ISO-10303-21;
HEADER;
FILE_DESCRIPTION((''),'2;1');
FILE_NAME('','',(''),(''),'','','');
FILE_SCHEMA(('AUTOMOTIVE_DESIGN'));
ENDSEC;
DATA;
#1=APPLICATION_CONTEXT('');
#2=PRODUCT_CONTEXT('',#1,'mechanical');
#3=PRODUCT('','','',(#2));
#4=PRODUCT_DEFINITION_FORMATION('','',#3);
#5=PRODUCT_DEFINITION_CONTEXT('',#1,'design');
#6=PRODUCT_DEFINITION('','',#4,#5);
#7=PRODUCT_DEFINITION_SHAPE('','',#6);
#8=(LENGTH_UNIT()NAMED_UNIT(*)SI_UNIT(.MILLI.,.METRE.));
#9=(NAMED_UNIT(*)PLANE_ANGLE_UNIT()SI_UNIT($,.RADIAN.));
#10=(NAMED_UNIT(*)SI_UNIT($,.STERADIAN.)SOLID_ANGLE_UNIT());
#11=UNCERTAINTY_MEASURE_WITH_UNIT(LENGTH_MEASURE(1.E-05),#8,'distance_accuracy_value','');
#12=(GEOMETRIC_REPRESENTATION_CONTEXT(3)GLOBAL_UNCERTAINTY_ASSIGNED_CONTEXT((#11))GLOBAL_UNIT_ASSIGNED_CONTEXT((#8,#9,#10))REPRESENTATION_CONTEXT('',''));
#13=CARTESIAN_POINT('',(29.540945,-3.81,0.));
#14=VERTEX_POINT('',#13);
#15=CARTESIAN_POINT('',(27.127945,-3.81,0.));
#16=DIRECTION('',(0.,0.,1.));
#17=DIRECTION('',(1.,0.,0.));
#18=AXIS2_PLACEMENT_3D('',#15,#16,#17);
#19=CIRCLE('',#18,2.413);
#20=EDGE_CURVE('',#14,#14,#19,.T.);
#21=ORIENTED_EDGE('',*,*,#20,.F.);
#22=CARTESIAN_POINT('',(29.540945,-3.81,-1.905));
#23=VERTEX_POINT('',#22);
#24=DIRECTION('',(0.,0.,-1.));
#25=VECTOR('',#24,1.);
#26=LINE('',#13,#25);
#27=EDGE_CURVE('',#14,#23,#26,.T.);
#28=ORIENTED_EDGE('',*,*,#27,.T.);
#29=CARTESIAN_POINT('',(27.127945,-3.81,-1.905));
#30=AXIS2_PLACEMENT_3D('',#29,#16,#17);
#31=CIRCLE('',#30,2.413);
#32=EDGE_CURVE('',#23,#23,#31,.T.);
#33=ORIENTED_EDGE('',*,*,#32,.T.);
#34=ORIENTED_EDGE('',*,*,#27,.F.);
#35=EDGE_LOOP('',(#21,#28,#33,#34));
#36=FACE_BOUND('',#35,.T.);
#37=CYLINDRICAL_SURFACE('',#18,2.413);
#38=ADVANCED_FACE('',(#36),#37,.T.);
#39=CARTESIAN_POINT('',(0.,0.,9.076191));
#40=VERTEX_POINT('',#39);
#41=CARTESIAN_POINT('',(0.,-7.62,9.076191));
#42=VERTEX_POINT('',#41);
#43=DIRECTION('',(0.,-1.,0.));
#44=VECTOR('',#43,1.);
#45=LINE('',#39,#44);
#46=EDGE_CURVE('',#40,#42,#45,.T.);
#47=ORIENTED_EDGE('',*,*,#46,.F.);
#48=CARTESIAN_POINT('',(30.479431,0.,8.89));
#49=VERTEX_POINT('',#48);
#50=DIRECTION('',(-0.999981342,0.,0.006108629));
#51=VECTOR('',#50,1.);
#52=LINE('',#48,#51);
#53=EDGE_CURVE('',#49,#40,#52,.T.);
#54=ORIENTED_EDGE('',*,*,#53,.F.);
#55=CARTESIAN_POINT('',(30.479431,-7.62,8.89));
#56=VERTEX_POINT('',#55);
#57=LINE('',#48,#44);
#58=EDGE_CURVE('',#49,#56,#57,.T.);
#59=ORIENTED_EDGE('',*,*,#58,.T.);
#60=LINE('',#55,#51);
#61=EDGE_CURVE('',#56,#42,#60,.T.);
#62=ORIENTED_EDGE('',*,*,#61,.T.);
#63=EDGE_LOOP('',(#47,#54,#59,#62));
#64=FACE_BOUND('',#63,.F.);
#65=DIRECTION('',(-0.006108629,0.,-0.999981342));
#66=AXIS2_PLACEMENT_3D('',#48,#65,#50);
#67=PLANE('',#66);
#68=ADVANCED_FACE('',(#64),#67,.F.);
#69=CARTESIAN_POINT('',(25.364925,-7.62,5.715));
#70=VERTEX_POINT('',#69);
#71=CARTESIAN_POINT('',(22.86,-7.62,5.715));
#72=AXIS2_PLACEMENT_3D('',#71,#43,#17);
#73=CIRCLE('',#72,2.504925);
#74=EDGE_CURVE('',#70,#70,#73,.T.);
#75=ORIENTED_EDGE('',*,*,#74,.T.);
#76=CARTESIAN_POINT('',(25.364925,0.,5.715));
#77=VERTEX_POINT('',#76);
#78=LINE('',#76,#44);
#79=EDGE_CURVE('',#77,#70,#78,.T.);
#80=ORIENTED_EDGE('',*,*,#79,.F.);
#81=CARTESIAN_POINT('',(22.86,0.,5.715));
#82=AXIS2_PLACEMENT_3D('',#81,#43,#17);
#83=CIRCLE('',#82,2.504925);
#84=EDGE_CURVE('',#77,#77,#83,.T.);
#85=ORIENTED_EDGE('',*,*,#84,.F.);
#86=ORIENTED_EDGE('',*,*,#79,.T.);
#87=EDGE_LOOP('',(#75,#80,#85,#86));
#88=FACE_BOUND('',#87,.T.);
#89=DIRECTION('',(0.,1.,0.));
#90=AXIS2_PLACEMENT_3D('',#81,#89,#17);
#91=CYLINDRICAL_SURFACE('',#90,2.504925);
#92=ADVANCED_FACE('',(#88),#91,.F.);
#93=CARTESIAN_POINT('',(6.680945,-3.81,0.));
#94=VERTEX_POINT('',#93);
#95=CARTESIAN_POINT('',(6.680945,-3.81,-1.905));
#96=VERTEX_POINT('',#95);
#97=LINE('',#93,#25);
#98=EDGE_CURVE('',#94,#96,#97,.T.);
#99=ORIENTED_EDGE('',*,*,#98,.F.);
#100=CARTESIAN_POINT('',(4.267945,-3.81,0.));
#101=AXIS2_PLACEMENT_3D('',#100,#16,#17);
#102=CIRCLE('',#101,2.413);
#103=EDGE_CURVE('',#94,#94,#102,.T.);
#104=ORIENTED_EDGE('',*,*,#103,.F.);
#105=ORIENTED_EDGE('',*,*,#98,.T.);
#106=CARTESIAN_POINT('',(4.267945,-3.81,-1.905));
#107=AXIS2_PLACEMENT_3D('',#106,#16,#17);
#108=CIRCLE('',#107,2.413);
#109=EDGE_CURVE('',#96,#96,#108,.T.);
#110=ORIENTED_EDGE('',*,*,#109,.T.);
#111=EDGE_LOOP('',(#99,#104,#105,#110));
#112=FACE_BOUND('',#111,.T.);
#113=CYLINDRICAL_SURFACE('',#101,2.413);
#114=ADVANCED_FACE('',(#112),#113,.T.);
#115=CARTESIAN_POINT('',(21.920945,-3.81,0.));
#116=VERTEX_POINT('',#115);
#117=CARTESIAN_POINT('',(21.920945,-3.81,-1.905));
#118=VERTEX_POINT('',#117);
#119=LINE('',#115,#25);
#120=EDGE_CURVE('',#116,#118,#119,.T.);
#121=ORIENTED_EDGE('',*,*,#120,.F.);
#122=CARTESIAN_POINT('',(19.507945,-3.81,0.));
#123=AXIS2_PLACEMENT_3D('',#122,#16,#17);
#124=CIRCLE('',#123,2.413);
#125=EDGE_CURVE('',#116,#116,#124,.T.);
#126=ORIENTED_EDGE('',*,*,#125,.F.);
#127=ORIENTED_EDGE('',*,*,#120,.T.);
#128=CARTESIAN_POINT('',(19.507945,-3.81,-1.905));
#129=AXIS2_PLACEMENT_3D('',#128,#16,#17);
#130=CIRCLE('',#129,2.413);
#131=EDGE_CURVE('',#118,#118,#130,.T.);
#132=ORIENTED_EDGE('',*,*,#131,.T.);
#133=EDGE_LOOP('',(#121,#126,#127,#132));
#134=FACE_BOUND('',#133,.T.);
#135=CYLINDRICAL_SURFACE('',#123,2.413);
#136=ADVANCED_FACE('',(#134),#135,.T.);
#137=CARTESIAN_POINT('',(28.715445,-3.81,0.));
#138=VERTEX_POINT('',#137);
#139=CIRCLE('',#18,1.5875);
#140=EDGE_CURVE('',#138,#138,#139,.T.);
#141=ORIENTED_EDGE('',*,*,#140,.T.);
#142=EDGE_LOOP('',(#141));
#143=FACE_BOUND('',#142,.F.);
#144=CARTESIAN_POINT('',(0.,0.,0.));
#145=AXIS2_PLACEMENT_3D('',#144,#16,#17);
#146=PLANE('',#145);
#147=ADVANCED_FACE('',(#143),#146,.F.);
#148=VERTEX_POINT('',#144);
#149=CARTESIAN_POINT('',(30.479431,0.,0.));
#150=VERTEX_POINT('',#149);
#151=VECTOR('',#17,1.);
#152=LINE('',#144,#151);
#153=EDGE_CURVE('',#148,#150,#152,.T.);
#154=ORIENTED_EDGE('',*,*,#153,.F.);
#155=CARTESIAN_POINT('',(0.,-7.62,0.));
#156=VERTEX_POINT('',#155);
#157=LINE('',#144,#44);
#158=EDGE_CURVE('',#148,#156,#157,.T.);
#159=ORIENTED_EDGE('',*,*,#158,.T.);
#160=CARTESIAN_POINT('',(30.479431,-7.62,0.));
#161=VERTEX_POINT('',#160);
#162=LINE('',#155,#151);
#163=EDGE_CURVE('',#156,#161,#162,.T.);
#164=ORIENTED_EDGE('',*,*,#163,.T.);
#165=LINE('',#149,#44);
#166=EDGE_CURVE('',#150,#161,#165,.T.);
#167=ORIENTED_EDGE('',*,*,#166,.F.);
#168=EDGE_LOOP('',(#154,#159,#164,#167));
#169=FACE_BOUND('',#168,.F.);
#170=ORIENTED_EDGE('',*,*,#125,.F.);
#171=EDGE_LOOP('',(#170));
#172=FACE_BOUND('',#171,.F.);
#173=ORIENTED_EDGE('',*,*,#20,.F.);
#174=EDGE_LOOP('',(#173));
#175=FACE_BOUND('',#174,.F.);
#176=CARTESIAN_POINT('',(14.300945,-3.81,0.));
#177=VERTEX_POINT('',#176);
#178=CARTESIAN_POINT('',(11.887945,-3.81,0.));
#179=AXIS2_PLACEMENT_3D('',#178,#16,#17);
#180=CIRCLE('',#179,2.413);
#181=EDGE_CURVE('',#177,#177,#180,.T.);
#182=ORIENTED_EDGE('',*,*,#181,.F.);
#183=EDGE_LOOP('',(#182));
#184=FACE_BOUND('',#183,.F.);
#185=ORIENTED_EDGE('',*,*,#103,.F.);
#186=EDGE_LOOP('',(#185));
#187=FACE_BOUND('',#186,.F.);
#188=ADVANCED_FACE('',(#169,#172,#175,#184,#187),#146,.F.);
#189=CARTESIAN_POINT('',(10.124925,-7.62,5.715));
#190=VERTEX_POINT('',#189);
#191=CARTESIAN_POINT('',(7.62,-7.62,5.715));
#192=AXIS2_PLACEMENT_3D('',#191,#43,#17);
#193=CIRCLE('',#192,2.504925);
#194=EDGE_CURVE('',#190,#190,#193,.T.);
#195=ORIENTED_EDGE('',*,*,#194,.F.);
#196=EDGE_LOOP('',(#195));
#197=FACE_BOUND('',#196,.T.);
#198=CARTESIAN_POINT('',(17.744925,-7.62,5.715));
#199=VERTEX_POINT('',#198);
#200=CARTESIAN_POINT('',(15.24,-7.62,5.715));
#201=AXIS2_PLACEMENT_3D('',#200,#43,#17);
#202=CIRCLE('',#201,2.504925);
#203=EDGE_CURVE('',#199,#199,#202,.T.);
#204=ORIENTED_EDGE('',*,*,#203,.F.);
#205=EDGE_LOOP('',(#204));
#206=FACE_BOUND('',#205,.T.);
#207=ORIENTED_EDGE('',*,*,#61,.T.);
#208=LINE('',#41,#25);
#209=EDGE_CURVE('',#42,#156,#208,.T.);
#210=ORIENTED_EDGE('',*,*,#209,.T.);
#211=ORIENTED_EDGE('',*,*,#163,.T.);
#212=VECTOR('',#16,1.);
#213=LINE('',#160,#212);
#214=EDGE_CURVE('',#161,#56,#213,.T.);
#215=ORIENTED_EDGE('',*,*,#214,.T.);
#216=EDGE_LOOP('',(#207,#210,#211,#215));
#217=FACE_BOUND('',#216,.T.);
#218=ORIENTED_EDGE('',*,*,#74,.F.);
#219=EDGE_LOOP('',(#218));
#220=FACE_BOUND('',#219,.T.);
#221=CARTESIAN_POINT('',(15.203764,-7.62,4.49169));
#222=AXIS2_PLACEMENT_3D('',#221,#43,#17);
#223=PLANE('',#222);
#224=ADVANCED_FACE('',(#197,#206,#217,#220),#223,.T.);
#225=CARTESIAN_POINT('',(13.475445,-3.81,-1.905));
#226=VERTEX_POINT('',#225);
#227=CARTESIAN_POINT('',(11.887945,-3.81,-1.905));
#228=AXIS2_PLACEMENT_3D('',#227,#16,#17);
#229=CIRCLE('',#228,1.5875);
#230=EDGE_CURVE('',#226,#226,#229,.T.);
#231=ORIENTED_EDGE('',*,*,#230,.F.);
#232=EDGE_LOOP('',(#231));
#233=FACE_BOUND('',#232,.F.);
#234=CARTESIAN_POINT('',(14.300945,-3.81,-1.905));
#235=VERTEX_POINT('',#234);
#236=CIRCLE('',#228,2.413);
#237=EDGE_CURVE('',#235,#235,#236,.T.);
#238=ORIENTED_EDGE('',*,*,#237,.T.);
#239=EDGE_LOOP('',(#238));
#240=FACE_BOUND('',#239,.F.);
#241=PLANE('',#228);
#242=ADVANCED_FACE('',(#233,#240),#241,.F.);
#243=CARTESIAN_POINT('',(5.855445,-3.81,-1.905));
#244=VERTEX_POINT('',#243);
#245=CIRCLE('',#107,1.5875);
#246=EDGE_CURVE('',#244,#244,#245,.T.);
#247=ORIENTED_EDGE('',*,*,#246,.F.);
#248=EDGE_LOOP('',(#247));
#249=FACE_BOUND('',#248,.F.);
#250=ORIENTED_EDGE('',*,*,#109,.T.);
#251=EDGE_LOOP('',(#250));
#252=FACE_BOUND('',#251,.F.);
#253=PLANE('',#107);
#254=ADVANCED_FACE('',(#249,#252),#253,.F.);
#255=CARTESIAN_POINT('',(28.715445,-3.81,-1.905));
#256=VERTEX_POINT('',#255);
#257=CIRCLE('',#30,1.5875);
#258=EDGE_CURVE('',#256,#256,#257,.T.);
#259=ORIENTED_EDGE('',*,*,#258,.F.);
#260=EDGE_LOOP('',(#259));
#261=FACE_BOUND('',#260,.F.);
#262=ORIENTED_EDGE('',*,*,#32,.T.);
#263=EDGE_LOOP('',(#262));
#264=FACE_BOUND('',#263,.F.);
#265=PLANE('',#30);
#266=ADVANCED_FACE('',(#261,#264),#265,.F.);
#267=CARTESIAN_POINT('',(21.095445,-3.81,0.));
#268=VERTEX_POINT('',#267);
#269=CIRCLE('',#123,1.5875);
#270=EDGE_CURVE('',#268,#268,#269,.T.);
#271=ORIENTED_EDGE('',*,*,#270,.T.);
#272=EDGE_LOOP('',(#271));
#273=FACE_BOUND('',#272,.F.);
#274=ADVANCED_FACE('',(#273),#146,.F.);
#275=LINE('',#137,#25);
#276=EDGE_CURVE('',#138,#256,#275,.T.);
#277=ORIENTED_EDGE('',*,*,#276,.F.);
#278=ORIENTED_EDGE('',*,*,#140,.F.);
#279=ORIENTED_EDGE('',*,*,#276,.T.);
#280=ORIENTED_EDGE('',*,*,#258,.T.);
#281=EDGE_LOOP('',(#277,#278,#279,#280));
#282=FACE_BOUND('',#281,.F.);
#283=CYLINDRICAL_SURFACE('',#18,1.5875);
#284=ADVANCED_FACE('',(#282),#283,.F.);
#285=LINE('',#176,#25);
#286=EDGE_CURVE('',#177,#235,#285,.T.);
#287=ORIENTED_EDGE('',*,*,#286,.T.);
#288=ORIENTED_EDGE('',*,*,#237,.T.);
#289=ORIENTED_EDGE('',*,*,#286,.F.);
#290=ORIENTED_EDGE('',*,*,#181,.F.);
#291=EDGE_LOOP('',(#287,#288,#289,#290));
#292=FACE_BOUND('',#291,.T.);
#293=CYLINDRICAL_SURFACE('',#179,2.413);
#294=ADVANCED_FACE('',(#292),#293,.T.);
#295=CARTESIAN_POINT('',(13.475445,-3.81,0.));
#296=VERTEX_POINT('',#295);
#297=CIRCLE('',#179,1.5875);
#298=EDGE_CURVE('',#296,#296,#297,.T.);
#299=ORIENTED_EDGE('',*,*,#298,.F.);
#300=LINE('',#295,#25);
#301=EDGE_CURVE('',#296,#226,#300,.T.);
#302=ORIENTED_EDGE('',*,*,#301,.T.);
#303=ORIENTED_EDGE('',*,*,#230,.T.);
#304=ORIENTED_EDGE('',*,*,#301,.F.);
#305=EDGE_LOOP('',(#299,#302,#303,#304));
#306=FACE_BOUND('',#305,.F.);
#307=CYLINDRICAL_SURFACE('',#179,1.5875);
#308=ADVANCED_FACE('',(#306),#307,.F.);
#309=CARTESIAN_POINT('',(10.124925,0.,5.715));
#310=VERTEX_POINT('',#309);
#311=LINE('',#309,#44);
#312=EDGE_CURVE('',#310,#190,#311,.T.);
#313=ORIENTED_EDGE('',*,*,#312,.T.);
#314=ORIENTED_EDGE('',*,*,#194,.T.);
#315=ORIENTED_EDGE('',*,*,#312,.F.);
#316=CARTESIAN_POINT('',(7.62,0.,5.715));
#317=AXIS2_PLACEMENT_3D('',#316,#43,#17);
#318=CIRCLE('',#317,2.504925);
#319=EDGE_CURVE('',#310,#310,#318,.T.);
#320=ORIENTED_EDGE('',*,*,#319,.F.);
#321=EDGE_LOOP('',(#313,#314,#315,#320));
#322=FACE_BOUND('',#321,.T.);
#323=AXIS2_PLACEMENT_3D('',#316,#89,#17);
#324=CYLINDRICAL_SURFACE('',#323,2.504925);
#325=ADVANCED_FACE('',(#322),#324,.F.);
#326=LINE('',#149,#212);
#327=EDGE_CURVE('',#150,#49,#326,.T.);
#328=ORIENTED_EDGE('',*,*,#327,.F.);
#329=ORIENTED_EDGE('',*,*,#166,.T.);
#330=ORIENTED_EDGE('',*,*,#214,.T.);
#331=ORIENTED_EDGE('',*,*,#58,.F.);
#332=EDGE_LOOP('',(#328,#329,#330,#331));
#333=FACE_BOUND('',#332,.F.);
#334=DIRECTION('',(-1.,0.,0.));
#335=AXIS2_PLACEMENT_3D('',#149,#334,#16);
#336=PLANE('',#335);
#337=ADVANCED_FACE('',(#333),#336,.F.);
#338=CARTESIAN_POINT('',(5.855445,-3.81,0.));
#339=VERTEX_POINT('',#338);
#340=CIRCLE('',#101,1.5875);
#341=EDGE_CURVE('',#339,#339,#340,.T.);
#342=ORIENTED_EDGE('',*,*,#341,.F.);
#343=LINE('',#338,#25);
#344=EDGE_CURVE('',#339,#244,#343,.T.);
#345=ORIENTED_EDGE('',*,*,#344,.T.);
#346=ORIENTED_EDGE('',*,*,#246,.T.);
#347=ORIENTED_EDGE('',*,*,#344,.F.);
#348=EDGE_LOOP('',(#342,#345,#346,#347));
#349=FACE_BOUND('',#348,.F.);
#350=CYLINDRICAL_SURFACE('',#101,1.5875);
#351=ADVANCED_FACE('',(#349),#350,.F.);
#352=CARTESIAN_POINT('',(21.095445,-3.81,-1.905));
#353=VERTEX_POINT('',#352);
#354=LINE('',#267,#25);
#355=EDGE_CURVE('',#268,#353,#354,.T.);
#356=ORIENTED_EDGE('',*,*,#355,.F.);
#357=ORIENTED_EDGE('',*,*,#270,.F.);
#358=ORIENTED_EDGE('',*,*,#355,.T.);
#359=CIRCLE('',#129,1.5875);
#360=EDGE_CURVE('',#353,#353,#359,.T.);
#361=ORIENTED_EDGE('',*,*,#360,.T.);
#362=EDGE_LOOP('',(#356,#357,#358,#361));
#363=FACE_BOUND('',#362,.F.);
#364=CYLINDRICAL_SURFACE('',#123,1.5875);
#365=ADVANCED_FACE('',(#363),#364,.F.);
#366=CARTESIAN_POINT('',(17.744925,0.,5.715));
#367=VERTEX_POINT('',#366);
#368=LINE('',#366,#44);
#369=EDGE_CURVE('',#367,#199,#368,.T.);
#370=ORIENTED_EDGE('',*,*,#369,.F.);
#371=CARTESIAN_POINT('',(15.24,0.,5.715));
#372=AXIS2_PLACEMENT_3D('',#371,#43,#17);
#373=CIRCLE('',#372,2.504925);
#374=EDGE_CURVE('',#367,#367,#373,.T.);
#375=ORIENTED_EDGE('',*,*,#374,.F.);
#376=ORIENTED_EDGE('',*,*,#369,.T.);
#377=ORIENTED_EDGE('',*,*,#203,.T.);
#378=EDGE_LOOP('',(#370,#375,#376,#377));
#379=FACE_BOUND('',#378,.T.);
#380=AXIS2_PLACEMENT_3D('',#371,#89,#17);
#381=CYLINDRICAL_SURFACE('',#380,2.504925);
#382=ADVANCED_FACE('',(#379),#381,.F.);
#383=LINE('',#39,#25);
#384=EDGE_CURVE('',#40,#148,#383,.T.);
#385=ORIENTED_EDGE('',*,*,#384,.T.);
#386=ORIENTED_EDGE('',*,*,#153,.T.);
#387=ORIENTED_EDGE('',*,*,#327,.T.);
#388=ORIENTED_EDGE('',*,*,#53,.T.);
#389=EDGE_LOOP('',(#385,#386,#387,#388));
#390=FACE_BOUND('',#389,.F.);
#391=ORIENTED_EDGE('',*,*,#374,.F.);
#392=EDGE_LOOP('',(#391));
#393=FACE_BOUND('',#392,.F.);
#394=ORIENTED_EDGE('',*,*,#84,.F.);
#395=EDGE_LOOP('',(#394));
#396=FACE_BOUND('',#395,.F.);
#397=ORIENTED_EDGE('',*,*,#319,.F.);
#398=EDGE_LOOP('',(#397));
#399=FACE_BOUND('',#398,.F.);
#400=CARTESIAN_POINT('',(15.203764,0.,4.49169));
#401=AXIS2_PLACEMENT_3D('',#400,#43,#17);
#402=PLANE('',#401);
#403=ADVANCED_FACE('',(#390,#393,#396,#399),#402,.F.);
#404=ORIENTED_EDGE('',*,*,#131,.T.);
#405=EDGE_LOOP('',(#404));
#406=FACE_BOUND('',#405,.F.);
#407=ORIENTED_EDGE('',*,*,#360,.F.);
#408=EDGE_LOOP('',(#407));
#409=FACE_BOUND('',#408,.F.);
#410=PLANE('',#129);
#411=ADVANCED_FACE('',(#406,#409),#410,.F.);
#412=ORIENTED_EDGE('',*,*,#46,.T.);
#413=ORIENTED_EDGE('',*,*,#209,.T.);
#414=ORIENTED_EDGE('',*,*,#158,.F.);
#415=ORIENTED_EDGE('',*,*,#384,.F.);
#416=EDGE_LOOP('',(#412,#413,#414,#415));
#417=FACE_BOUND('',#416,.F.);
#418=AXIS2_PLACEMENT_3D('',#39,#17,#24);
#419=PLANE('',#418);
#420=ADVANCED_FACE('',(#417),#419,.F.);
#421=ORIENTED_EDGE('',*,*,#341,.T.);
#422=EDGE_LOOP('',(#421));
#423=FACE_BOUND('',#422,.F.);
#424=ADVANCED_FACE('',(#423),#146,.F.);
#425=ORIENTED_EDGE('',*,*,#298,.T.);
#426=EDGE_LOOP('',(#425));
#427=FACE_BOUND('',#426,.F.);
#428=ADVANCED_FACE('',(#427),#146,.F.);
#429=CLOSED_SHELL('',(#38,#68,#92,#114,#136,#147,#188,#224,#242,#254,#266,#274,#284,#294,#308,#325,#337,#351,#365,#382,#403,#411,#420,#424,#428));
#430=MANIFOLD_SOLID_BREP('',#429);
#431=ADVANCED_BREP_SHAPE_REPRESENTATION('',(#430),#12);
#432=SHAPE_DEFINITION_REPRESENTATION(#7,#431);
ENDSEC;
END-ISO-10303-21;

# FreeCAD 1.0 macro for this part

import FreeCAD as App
import Part
import Sketcher

V = App.Vector
Q = App.Units.Quantity

doc = App.newDocument("Part")
body = doc.addObject("PartDesign::Body", "Body")

# Sketch on XZ plane
sketch1 = doc.addObject("Sketcher::SketchObject", "Sketch")
body.addObject(sketch1)
sketch1.AttachmentSupport = (doc.XZ_Plane, [""])
sketch1.MapMode = "FlatFace"
sketch1.addGeometry(Part.LineSegment(V(30.5, 8.9, 0), V(0, 9.1, 0)), False)
sketch1.addGeometry(Part.LineSegment(V(0, 9.1, 0), V(0, 0, 0)), False)
sketch1.addGeometry(Part.LineSegment(V(0, 0, 0), V(30.5, 0, 0)), False)
sketch1.addGeometry(Part.LineSegment(V(30.5, 0, 0), V(30.5, 8.9, 0)), False)
sketch1.addGeometry(Part.Circle(V(7.6, 5.7, 0), V(0, 0, 1), 2.5), False)
sketch1.addGeometry(Part.Circle(V(15.2, 5.7, 0), V(0, 0, 1), 2.5), False)
sketch1.addGeometry(Part.Circle(V(22.9, 5.7, 0), V(0, 0, 1), 2.5), False)
sketch1.addConstraint(Sketcher.Constraint("Coincident", 0, 2, 1, 1))
sketch1.addConstraint(Sketcher.Constraint("Coincident", 1, 2, 2, 1))
sketch1.addConstraint(Sketcher.Constraint("Coincident", 2, 2, 3, 1))
sketch1.addConstraint(Sketcher.Constraint("Coincident", 3, 2, 0, 1))
sketch1.addConstraint(Sketcher.Constraint("Vertical", 1))
sketch1.addConstraint(Sketcher.Constraint("Horizontal", 2))
sketch1.addConstraint(Sketcher.Constraint("Vertical", 3))
sketch1.addConstraint(Sketcher.Constraint("Coincident", 1, 2, -1, 1))
sketch1.addConstraint(Sketcher.Constraint("Equal", 4, 5))
sketch1.addConstraint(Sketcher.Constraint("Equal", 5, 6))
sketch1.addConstraint(Sketcher.Constraint("Horizontal", 4, 3, 5, 3))
sketch1.addConstraint(Sketcher.Constraint("Horizontal", 5, 3, 6, 3))
sketch1.addConstraint(Sketcher.Constraint("Distance", 0, Q("1.2 in")))
sketch1.addConstraint(Sketcher.Constraint("DistanceY", 3, 1, 3, 2, Q("0.35 in")))
sketch1.addConstraint(Sketcher.Constraint("DistanceX", -1, 1, 4, 3, Q("0.3 in")))
sketch1.addConstraint(Sketcher.Constraint("DistanceX", -1, 1, 5, 3, Q("0.6 in")))
sketch1.addConstraint(Sketcher.Constraint("DistanceX", -1, 1, 6, 3, Q("0.9 in")))
sketch1.addConstraint(Sketcher.Constraint("Angle", 0, Q("179.649999 deg")))
sketch1.addConstraint(Sketcher.Constraint("Diameter", 4, 5.00985))
sketch1.addConstraint(Sketcher.Constraint("DistanceY", -1, 1, 4, 3, Q("0.225 in")))
pad1 = doc.addObject("PartDesign::Pad", "Pad")
body.addObject(pad1)
pad1.Profile = sketch1
pad1.Length = Q("0.3 in")

# Sketch on XY plane
sketch2 = doc.addObject("Sketcher::SketchObject", "Sketch001")
body.addObject(sketch2)
sketch2.AttachmentSupport = (doc.XY_Plane, [""])
sketch2.MapMode = "FlatFace"
sketch2.addGeometry(Part.Circle(V(4.3, -3.8, 0), V(0, 0, 1), 2.4), False)
sketch2.addGeometry(Part.Circle(V(4.3, -3.8, 0), V(0, 0, 1), 1.6), False)
sketch2.addGeometry(Part.Circle(V(11.9, -3.8, 0), V(0, 0, 1), 2.4), False)
sketch2.addGeometry(Part.Circle(V(11.9, -3.8, 0), V(0, 0, 1), 1.6), False)
sketch2.addGeometry(Part.Circle(V(19.5, -3.8, 0), V(0, 0, 1), 2.4), False)
sketch2.addGeometry(Part.Circle(V(19.5, -3.8, 0), V(0, 0, 1), 1.6), False)
sketch2.addGeometry(Part.Circle(V(27.1, -3.8, 0), V(0, 0, 1), 2.4), False)
sketch2.addGeometry(Part.Circle(V(27.1, -3.8, 0), V(0, 0, 1), 1.6), False)
sketch2.addConstraint(Sketcher.Constraint("Coincident", 1, 3, 0, 3))
sketch2.addConstraint(Sketcher.Constraint("Coincident", 3, 3, 2, 3))
sketch2.addConstraint(Sketcher.Constraint("Coincident", 5, 3, 4, 3))
sketch2.addConstraint(Sketcher.Constraint("Coincident", 7, 3, 6, 3))
sketch2.addConstraint(Sketcher.Constraint("Equal", 0, 2))
sketch2.addConstraint(Sketcher.Constraint("Equal", 1, 3))
sketch2.addConstraint(Sketcher.Constraint("Equal", 2, 4))
sketch2.addConstraint(Sketcher.Constraint("Equal", 3, 5))
sketch2.addConstraint(Sketcher.Constraint("Equal", 4, 6))
sketch2.addConstraint(Sketcher.Constraint("Equal", 5, 7))
sketch2.addConstraint(Sketcher.Constraint("Horizontal", 1, 3, 2, 3))
sketch2.addConstraint(Sketcher.Constraint("Horizontal", 3, 3, 4, 3))
sketch2.addConstraint(Sketcher.Constraint("Horizontal", 5, 3, 6, 3))
sketch2.addConstraint(Sketcher.Constraint("Diameter", 0, Q("0.19 in")))
sketch2.addConstraint(Sketcher.Constraint("Diameter", 1, Q("0.125 in")))
sketch2.addConstraint(Sketcher.Constraint("DistanceX", 0, 3, 2, 3, Q("0.3 in")))
sketch2.addConstraint(Sketcher.Constraint("DistanceX", 2, 3, 4, 3, Q("0.3 in")))
sketch2.addConstraint(Sketcher.Constraint("DistanceX", 4, 3, 6, 3, Q("0.3 in")))
sketch2.addConstraint(Sketcher.Constraint("DistanceY", 0, 3, -1, 1, Q("0.15 in")))
sketch2.addConstraint(Sketcher.Constraint("DistanceX", -1, 1, 0, 3, 4.267945))
pad2 = doc.addObject("PartDesign::Pad", "Pad001")
body.addObject(pad2)
pad2.Profile = sketch2
pad2.Length = Q("0.075 in")
pad2.Reversed = True

doc.recompute()
